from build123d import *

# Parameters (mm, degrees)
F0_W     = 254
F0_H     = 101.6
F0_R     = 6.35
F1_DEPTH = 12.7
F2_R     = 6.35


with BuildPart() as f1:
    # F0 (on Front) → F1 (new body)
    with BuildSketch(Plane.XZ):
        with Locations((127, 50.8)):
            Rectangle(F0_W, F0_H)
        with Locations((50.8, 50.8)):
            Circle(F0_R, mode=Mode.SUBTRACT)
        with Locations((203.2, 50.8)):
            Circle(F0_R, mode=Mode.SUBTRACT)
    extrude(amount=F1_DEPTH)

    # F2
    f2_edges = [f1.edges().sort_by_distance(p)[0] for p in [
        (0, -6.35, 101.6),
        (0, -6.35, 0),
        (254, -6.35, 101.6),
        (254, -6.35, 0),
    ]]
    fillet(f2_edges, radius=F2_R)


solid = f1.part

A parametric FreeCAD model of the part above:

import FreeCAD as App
import Part
import Sketcher
Q = App.Units.Quantity


def edges_at(feature, points):
    """Names of the edges that pass closest to the given points."""
    edges = feature.Shape.Edges
    near = lambda p: min(range(len(edges)), key=lambda i: edges[i].distToShape(Part.Vertex(*p))[0])
    return sorted({f"Edge{near(p) + 1}" for p in points})


def add_polygon(sketch, points):
    """Adds a closed chain of lines whose ends are joined by coincident constraints."""
    first, n = sketch.GeometryCount, len(points)
    for a, b in zip(points, points[1:] + points[:1]):
        sketch.addGeometry(Part.LineSegment(App.Vector(*a, 0), App.Vector(*b, 0)), False)
    for i in range(n):
        sketch.addConstraint(Sketcher.Constraint("Coincident", first + i, 2, first + (i + 1) % n, 1))

doc = App.newDocument("Part")
body = doc.addObject("PartDesign::Body", "Body")

# Sketch on XZ plane
sketch1 = body.newObject("Sketcher::SketchObject", "Sketch")
sketch1.AttachmentSupport = (doc.getObject("XZ_Plane"), [""])
sketch1.MapMode = "FlatFace"
add_polygon(sketch1, [(0, 102), (0, 0), (254, 0), (254, 102)])  # lines 0-3
sketch1.addGeometry(Part.Circle(App.Vector(51, 51, 0), App.Vector(0, 0, 1), 6), False)  # 4
sketch1.addGeometry(Part.Circle(App.Vector(203, 51, 0), App.Vector(0, 0, 1), 6), False)  # 5
sketch1.addConstraint(Sketcher.Constraint("Vertical", 0))
sketch1.addConstraint(Sketcher.Constraint("Horizontal", 1))
sketch1.addConstraint(Sketcher.Constraint("Vertical", 2))
sketch1.addConstraint(Sketcher.Constraint("Horizontal", 3))
sketch1.addConstraint(Sketcher.Constraint("Coincident", 0, 2, -1, 1))
sketch1.addConstraint(Sketcher.Constraint("Equal", 4, 5))
sketch1.addConstraint(Sketcher.Constraint("Horizontal", 4, 3, 5, 3))
sketch1.addConstraint(Sketcher.Constraint("Diameter", 4, Q("0.5 in")))
sketch1.addConstraint(Sketcher.Constraint("DistanceX", 1, 1, 1, 2, Q("10 in")))
sketch1.addConstraint(Sketcher.Constraint("DistanceY", 0, 2, 0, 1, Q("4 in")))
sketch1.addConstraint(Sketcher.Constraint("DistanceX", -1, 1, 4, 3, Q("2 in")))
sketch1.addConstraint(Sketcher.Constraint("DistanceY", -1, 1, 4, 3, Q("2 in")))
sketch1.addConstraint(Sketcher.Constraint("DistanceX", -1, 1, 5, 3, Q("8 in")))
pad1 = body.newObject("PartDesign::Pad", "Pad")
pad1.Profile = sketch1
pad1.Length = Q("0.5 in")
doc.recompute()

fillet = body.newObject("PartDesign::Fillet", "Fillet")
fillet.Base = (pad1, edges_at(pad1, [
    (0, -6.35, 101.6),
    (0, -6.35, 0),
    (254, -6.35, 101.6),
    (254, -6.35, 0),
]))
fillet.Radius = Q("0.25 in")

doc.recompute()
